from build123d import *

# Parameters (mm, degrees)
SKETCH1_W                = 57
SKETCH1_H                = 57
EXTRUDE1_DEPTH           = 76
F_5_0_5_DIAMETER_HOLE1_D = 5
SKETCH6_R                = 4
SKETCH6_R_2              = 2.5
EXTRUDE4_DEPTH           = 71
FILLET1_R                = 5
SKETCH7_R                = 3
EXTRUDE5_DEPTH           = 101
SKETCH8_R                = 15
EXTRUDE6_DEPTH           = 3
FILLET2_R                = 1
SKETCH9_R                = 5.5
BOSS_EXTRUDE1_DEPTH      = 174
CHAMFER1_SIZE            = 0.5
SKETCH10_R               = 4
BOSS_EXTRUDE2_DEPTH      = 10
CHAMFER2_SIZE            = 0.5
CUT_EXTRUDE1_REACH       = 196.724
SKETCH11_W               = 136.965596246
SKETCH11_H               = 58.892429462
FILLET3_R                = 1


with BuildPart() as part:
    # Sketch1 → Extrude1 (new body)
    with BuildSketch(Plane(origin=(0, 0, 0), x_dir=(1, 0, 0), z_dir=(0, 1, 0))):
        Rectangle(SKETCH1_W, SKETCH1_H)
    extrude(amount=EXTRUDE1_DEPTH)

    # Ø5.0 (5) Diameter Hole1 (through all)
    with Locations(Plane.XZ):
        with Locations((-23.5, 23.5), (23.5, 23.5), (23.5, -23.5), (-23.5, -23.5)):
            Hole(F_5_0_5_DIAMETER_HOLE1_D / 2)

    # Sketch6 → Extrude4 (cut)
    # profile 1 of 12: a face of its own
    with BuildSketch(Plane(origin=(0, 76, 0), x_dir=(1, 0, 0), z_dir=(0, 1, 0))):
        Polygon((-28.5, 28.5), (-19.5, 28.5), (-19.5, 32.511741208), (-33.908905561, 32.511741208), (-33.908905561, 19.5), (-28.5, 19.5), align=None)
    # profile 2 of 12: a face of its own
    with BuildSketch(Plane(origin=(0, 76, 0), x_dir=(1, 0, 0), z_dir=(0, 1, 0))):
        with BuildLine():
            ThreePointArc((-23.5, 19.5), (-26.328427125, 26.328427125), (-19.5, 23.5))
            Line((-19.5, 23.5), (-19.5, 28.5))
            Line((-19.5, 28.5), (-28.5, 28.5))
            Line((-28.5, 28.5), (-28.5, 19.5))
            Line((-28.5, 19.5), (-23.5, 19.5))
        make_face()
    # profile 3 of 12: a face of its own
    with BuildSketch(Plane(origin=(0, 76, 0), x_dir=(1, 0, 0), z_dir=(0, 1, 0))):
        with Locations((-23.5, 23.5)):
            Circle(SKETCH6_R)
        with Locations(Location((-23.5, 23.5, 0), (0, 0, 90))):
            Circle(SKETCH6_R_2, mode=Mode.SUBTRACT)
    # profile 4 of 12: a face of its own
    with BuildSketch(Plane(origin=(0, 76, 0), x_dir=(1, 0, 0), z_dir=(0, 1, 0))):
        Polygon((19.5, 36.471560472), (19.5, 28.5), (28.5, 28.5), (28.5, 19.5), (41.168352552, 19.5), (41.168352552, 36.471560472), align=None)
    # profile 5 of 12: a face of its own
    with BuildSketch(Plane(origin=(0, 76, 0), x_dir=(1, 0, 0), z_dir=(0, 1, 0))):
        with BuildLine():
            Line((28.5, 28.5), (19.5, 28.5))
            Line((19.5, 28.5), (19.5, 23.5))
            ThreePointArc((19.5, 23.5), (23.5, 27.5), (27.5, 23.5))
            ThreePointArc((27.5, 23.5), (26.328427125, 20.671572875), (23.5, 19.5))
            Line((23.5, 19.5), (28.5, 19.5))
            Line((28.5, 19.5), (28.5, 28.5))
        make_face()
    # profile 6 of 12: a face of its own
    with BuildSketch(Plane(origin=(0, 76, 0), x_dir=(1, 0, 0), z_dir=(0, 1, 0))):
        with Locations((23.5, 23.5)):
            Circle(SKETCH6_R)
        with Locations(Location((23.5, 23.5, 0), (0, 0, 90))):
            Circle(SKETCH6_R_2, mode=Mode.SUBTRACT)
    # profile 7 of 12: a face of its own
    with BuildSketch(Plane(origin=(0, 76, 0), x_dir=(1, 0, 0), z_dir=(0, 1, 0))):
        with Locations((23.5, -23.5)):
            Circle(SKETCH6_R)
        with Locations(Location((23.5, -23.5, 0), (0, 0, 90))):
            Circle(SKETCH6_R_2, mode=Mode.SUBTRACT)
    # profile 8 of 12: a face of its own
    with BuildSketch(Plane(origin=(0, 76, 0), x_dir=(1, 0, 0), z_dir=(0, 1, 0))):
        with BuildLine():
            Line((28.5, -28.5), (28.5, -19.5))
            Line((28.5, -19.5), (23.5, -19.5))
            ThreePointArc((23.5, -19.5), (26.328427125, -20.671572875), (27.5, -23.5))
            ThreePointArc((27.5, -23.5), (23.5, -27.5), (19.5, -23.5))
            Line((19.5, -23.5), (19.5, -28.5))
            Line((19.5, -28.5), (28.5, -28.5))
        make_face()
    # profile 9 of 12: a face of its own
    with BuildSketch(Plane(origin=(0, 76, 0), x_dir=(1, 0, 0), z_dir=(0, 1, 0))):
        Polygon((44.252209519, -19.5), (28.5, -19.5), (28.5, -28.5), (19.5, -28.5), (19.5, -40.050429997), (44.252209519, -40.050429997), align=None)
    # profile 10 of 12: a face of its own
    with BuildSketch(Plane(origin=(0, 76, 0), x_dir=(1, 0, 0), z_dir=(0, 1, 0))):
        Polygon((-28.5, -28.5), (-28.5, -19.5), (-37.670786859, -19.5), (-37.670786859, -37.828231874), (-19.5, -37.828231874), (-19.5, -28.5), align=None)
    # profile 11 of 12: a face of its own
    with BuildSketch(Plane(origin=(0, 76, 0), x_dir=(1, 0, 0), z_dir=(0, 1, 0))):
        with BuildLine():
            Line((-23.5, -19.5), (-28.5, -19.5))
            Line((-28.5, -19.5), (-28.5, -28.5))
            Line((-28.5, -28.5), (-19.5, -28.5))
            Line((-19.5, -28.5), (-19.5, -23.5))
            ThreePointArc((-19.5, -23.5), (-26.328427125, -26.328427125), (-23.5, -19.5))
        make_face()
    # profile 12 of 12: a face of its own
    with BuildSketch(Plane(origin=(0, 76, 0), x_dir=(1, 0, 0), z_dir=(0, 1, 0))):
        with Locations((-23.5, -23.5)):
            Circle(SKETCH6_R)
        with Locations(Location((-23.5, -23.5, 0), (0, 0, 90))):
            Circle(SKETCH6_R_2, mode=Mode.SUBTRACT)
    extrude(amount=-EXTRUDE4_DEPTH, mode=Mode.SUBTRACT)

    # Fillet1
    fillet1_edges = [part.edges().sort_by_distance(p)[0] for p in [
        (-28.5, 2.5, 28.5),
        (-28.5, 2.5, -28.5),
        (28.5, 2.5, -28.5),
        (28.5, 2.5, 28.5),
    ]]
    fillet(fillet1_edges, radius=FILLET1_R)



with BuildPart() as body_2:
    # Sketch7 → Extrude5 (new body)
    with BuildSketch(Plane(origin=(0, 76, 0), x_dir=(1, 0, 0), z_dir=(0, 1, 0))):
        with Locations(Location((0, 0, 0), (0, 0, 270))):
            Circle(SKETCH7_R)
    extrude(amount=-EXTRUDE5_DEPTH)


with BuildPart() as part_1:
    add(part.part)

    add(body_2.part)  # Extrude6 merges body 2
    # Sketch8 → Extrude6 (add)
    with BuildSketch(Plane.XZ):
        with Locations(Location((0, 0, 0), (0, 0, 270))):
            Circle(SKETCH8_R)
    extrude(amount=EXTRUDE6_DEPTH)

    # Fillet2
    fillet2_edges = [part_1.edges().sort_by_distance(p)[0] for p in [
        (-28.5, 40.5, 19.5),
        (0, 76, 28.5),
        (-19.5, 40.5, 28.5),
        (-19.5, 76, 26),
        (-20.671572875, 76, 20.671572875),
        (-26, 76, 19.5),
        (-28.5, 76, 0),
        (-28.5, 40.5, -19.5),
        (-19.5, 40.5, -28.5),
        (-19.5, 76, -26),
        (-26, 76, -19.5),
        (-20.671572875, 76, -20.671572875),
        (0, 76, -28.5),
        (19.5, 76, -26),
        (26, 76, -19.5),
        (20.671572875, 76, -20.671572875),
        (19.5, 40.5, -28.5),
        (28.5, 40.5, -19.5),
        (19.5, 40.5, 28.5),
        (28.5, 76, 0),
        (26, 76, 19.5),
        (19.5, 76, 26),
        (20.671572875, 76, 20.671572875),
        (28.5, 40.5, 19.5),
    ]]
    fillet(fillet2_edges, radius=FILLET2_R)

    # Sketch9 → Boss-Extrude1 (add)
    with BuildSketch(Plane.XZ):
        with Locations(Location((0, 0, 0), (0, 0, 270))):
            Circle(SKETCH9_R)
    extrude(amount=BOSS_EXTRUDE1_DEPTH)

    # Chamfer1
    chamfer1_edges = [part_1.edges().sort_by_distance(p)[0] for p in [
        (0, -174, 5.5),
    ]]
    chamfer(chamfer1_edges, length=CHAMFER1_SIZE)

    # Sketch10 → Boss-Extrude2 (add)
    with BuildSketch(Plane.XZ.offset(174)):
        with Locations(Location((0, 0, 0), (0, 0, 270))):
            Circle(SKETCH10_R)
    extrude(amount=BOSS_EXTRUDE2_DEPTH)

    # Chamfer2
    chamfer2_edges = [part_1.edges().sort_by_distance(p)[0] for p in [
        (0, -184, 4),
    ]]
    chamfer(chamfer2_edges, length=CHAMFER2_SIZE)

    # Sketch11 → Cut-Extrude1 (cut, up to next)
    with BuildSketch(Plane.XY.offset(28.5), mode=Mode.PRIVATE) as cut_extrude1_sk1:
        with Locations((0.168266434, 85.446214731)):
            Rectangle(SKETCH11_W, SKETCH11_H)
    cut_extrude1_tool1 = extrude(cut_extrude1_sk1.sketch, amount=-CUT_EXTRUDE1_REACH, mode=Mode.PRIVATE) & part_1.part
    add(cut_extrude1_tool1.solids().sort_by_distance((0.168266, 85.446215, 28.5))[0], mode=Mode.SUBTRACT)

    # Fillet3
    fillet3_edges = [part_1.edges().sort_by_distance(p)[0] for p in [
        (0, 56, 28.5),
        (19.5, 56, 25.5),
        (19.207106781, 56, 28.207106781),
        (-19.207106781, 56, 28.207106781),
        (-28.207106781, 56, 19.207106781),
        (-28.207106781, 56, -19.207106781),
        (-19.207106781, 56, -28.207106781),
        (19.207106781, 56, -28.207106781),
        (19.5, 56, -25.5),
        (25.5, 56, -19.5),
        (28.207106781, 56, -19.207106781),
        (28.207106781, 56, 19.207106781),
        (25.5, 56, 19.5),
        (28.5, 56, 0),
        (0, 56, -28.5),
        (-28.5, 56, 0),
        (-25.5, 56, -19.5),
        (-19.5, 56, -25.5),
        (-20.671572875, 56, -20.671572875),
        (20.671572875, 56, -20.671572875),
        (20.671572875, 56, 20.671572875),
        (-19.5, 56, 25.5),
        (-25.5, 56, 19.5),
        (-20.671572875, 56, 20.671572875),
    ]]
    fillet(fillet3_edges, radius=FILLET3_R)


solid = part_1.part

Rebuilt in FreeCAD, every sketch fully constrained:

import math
import FreeCAD as App
import Part
import Sketcher

V = App.Vector
Q = App.Units.Quantity


def edges_at(feature, points):
    """Names of the edges that pass closest to the given points."""
    edges = feature.Shape.Edges
    near = lambda p: min(range(len(edges)), key=lambda i: edges[i].distToShape(Part.Vertex(*p))[0])
    return sorted({f"Edge{near(p) + 1}" for p in points})

doc = App.newDocument("Part")
body = doc.addObject("PartDesign::Body", "Body")

# Sketch on XZ plane
sketch1 = body.newObject("Sketcher::SketchObject", "Sketch")
sketch1.AttachmentSupport = (doc.getObject("XZ_Plane"), [""])
sketch1.MapMode = "FlatFace"
sketch1.addGeometry(Part.LineSegment(V(-28, -28, 0), V(-28, 28, 0)), False)
sketch1.addGeometry(Part.LineSegment(V(-28, 28, 0), V(28, 28, 0)), False)
sketch1.addGeometry(Part.LineSegment(V(28, 28, 0), V(28, -28, 0)), False)
sketch1.addGeometry(Part.LineSegment(V(28, -28, 0), V(-28, -28, 0)), False)
sketch1.addConstraint(Sketcher.Constraint("Coincident", 0, 2, 1, 1))
sketch1.addConstraint(Sketcher.Constraint("Coincident", 1, 2, 2, 1))
sketch1.addConstraint(Sketcher.Constraint("Coincident", 2, 2, 3, 1))
sketch1.addConstraint(Sketcher.Constraint("Coincident", 3, 2, 0, 1))
sketch1.addConstraint(Sketcher.Constraint("Vertical", 0))
sketch1.addConstraint(Sketcher.Constraint("Horizontal", 1))
sketch1.addConstraint(Sketcher.Constraint("Vertical", 2))
sketch1.addConstraint(Sketcher.Constraint("Horizontal", 3))
sketch1.addConstraint(Sketcher.Constraint("Symmetric", 0, 2, 2, 2, -1, 1))
sketch1.addConstraint(Sketcher.Constraint("Equal", 3, 0))
sketch1.addConstraint(Sketcher.Constraint("DistanceX", 1, 1, 1, 2, Q("57 mm")))
pad1 = body.newObject("PartDesign::Pad", "Pad")
pad1.Profile = sketch1
pad1.Length = 76
pad1.Reversed = True

# Sketch on XZ plane
sketch2 = body.newObject("Sketcher::SketchObject", "Sketch001")
sketch2.AttachmentSupport = (doc.getObject("XZ_Plane"), [""])
sketch2.MapMode = "FlatFace"
sketch2.addGeometry(Part.Circle(V(-23.5, 23.5, 0), V(0, 0, 1), 2.5), False)
sketch2.addGeometry(Part.Circle(V(23.5, 23.5, 0), V(0, 0, 1), 2.5), False)
sketch2.addGeometry(Part.Circle(V(23.5, -23.5, 0), V(0, 0, 1), 2.5), False)
sketch2.addGeometry(Part.Circle(V(-23.5, -23.5, 0), V(0, 0, 1), 2.5), False)
sketch2.addConstraint(Sketcher.Constraint("Equal", 0, 1))
sketch2.addConstraint(Sketcher.Constraint("Equal", 1, 2))
sketch2.addConstraint(Sketcher.Constraint("Equal", 2, 3))
sketch2.addConstraint(Sketcher.Constraint("Symmetric", 0, 3, 2, 3, -1, 1))
sketch2.addConstraint(Sketcher.Constraint("Symmetric", 1, 3, 3, 3, -1, 1))
sketch2.addConstraint(Sketcher.Constraint("Symmetric", 0, 3, 1, 3, -2))
sketch2.addConstraint(Sketcher.Constraint("Diameter", 0, Q("5 mm")))
sketch2.addConstraint(Sketcher.Constraint("DistanceX", 0, 3, 1, 3, Q("47 mm")))
sketch2.addConstraint(Sketcher.Constraint("DistanceY", 2, 3, 1, 3, Q("47 mm")))
doc.recompute()
hole = body.newObject("PartDesign::Hole", "Hole")
hole.Profile = sketch2
hole.ThreadType = "None"
hole.Diameter = 5
hole.DepthType = "ThroughAll"

# Sketch on XZ plane
sketch3 = body.newObject("Sketcher::SketchObject", "Sketch002")
sketch3.AttachmentSupport = (doc.getObject("XZ_Plane"), [""])
sketch3.MapMode = "FlatFace"
sketch3.AttachmentOffset = App.Placement(V(0, 0, -76), App.Rotation())
sketch3.addGeometry(Part.LineSegment(V(-19.5, -32.5, 0), V(-33.9, -32.5, 0)), False)
sketch3.addGeometry(Part.LineSegment(V(-33.9, -32.5, 0), V(-33.9, -19.5, 0)), False)
sketch3.addGeometry(Part.LineSegment(V(-33.9, -19.5, 0), V(-23.5, -19.5, 0)), False)
sketch3.addGeometry(Part.ArcOfCircle(Part.Circle(V(-23.5, -23.5, 0), V(0, 0, 1), 4), math.radians(0), math.radians(90)), False)
sketch3.addGeometry(Part.LineSegment(V(-19.5, -23.5, 0), V(-19.5, -32.5, 0)), False)
sketch3.addGeometry(Part.Circle(V(-23.5, -23.5, 0), V(0, 0, 1), 2.5), False)
sketch3.addGeometry(Part.LineSegment(V(19.5, -36.5, 0), V(19.5, -23.5, 0)), False)
sketch3.addGeometry(Part.ArcOfCircle(Part.Circle(V(23.5, -23.5, 0), V(0, 0, 1), 4), math.radians(90), math.radians(180)), False)
sketch3.addGeometry(Part.LineSegment(V(23.5, -19.5, 0), V(41.2, -19.5, 0)), False)
sketch3.addGeometry(Part.LineSegment(V(41.2, -19.5, 0), V(41.2, -36.5, 0)), False)
sketch3.addGeometry(Part.LineSegment(V(41.2, -36.5, 0), V(19.5, -36.5, 0)), False)
sketch3.addGeometry(Part.Circle(V(23.5, -23.5, 0), V(0, 0, 1), 2.5), False)
sketch3.addGeometry(Part.ArcOfCircle(Part.Circle(V(23.5, 23.5, 0), V(0, 0, 1), 4), math.radians(180), math.radians(270)), False)
sketch3.addGeometry(Part.LineSegment(V(19.5, 23.5, 0), V(19.5, 40.1, 0)), False)
sketch3.addGeometry(Part.LineSegment(V(19.5, 40.1, 0), V(44.3, 40.1, 0)), False)
sketch3.addGeometry(Part.LineSegment(V(44.3, 40.1, 0), V(44.3, 19.5, 0)), False)
sketch3.addGeometry(Part.LineSegment(V(44.3, 19.5, 0), V(23.5, 19.5, 0)), False)
sketch3.addGeometry(Part.Circle(V(23.5, 23.5, 0), V(0, 0, 1), 2.5), False)
sketch3.addGeometry(Part.LineSegment(V(-37.7, 19.5, 0), V(-37.7, 37.8, 0)), False)
sketch3.addGeometry(Part.LineSegment(V(-37.7, 37.8, 0), V(-19.5, 37.8, 0)), False)
sketch3.addGeometry(Part.LineSegment(V(-19.5, 37.8, 0), V(-19.5, 23.5, 0)), False)
sketch3.addGeometry(Part.ArcOfCircle(Part.Circle(V(-23.5, 23.5, 0), V(0, 0, 1), 4), math.radians(-90), math.radians(0)), False)
sketch3.addGeometry(Part.LineSegment(V(-23.5, 19.5, 0), V(-37.7, 19.5, 0)), False)
sketch3.addGeometry(Part.Circle(V(-23.5, 23.5, 0), V(0, 0, 1), 2.5), False)
sketch3.addConstraint(Sketcher.Constraint("Coincident", 0, 2, 1, 1))
sketch3.addConstraint(Sketcher.Constraint("Coincident", 1, 2, 2, 1))
sketch3.addConstraint(Sketcher.Constraint("Tangent", 2, 2, 3, 2))
sketch3.addConstraint(Sketcher.Constraint("Tangent", 3, 1, 4, 1))
sketch3.addConstraint(Sketcher.Constraint("Coincident", 4, 2, 0, 1))
sketch3.addConstraint(Sketcher.Constraint("Tangent", 6, 2, 7, 2))
sketch3.addConstraint(Sketcher.Constraint("Tangent", 7, 1, 8, 1))
sketch3.addConstraint(Sketcher.Constraint("Coincident", 8, 2, 9, 1))
sketch3.addConstraint(Sketcher.Constraint("Coincident", 9, 2, 10, 1))
sketch3.addConstraint(Sketcher.Constraint("Coincident", 10, 2, 6, 1))
sketch3.addConstraint(Sketcher.Constraint("Tangent", 12, 1, 13, 1))
sketch3.addConstraint(Sketcher.Constraint("Coincident", 13, 2, 14, 1))
sketch3.addConstraint(Sketcher.Constraint("Coincident", 14, 2, 15, 1))
sketch3.addConstraint(Sketcher.Constraint("Coincident", 15, 2, 16, 1))
sketch3.addConstraint(Sketcher.Constraint("Tangent", 16, 2, 12, 2))
sketch3.addConstraint(Sketcher.Constraint("Coincident", 18, 2, 19, 1))
sketch3.addConstraint(Sketcher.Constraint("Coincident", 19, 2, 20, 1))
sketch3.addConstraint(Sketcher.Constraint("Tangent", 20, 2, 21, 2))
sketch3.addConstraint(Sketcher.Constraint("Tangent", 21, 1, 22, 1))
sketch3.addConstraint(Sketcher.Constraint("Coincident", 22, 2, 18, 1))
sketch3.addConstraint(Sketcher.Constraint("Horizontal", 0))
sketch3.addConstraint(Sketcher.Constraint("Vertical", 1))
sketch3.addConstraint(Sketcher.Constraint("Horizontal", 2))
sketch3.addConstraint(Sketcher.Constraint("Vertical", 4))
sketch3.addConstraint(Sketcher.Constraint("Vertical", 6))
sketch3.addConstraint(Sketcher.Constraint("Horizontal", 8))
sketch3.addConstraint(Sketcher.Constraint("Vertical", 9))
sketch3.addConstraint(Sketcher.Constraint("Horizontal", 10))
sketch3.addConstraint(Sketcher.Constraint("Vertical", 13))
sketch3.addConstraint(Sketcher.Constraint("Horizontal", 14))
sketch3.addConstraint(Sketcher.Constraint("Vertical", 15))
sketch3.addConstraint(Sketcher.Constraint("Horizontal", 16))
sketch3.addConstraint(Sketcher.Constraint("Vertical", 18))
sketch3.addConstraint(Sketcher.Constraint("Horizontal", 19))
sketch3.addConstraint(Sketcher.Constraint("Vertical", 20))
sketch3.addConstraint(Sketcher.Constraint("Horizontal", 22))
sketch3.addConstraint(Sketcher.Constraint("Coincident", 5, 3, 3, 3))
sketch3.addConstraint(Sketcher.Constraint("Coincident", 11, 3, 7, 3))
sketch3.addConstraint(Sketcher.Constraint("Coincident", 17, 3, 12, 3))
sketch3.addConstraint(Sketcher.Constraint("Coincident", 23, 3, 21, 3))
sketch3.addConstraint(Sketcher.Constraint("Equal", 3, 7))
sketch3.addConstraint(Sketcher.Constraint("Equal", 5, 11))
sketch3.addConstraint(Sketcher.Constraint("Equal", 7, 12))
sketch3.addConstraint(Sketcher.Constraint("Equal", 11, 17))
sketch3.addConstraint(Sketcher.Constraint("Equal", 12, 21))
sketch3.addConstraint(Sketcher.Constraint("Equal", 17, 23))
sketch3.addConstraint(Sketcher.Constraint("Symmetric", 3, 3, 12, 3, -1, 1))
sketch3.addConstraint(Sketcher.Constraint("Symmetric", 7, 3, 21, 3, -1, 1))
sketch3.addConstraint(Sketcher.Constraint("Symmetric", 3, 3, 7, 3, -2))
sketch3.addConstraint(Sketcher.Constraint("Diameter", 5, Q("5 mm")))
sketch3.addConstraint(Sketcher.Constraint("Radius", 3, Q("4 mm")))
sketch3.addConstraint(Sketcher.Constraint("DistanceX", 3, 3, 7, 3, Q("47 mm")))
sketch3.addConstraint(Sketcher.Constraint("DistanceY", 7, 3, 12, 3, Q("47 mm")))
sketch3.addConstraint(Sketcher.Constraint("DistanceX", 14, 1, 14, 2, Q("24.75221 mm")))
sketch3.addConstraint(Sketcher.Constraint("DistanceY", 1, 1, 1, 2, Q("13.011741 mm")))
sketch3.addConstraint(Sketcher.Constraint("DistanceY", 6, 1, 6, 2, Q("12.97156 mm")))
sketch3.addConstraint(Sketcher.Constraint("DistanceY", 13, 1, 13, 2, Q("16.55043 mm")))
sketch3.addConstraint(Sketcher.Constraint("DistanceY", 18, 1, 18, 2, Q("18.328232 mm")))
sketch3.addConstraint(Sketcher.Constraint("DistanceX", 0, 2, 0, 1, Q("14.408906 mm")))
sketch3.addConstraint(Sketcher.Constraint("DistanceX", 8, 1, 8, 2, Q("17.668353 mm")))
sketch3.addConstraint(Sketcher.Constraint("DistanceX", 19, 1, 19, 2, Q("18.170787 mm")))
pocket1 = body.newObject("PartDesign::Pocket", "Pocket")
pocket1.Profile = sketch3
pocket1.Length = 71
pocket1.Reversed = True
doc.recompute()

fillet = body.newObject("PartDesign::Fillet", "Fillet")
fillet.Base = (pocket1, edges_at(pocket1, [
    (-28.5, 2.5, 28.5),
    (-28.5, 2.5, -28.5),
    (28.5, 2.5, -28.5),
    (28.5, 2.5, 28.5),
]))
fillet.Radius = 5
body2 = doc.addObject("PartDesign::Body", "Body001")

# Sketch on XZ plane
sketch4 = body2.newObject("Sketcher::SketchObject", "Sketch003")
sketch4.AttachmentSupport = (doc.getObject("XZ_Plane001"), [""])
sketch4.MapMode = "FlatFace"
sketch4.AttachmentOffset = App.Placement(V(0, 0, -76), App.Rotation())
sketch4.addGeometry(Part.Circle(V(0, 0, 0), V(0, 0, 1), 3), False)
sketch4.addConstraint(Sketcher.Constraint("Coincident", 0, 3, -1, 1))
sketch4.addConstraint(Sketcher.Constraint("Diameter", 0, Q("6 mm")))
pad2 = body2.newObject("PartDesign::Pad", "Pad001")
pad2.Profile = sketch4
pad2.Length = 101
doc.recompute()

boolean = body.newObject("PartDesign::Boolean", "Boolean")
boolean.Type = "Fuse"
boolean.addObjects([body2])

# Sketch on XZ plane
sketch5 = body.newObject("Sketcher::SketchObject", "Sketch004")
sketch5.AttachmentSupport = (doc.getObject("XZ_Plane"), [""])
sketch5.MapMode = "FlatFace"
sketch5.addGeometry(Part.Circle(V(0, 0, 0), V(0, 0, 1), 15), False)
sketch5.addConstraint(Sketcher.Constraint("Coincident", 0, 3, -1, 1))
sketch5.addConstraint(Sketcher.Constraint("Diameter", 0, Q("30 mm")))
pad3 = body.newObject("PartDesign::Pad", "Pad002")
pad3.Profile = sketch5
pad3.Length = 3
doc.recompute()

fillet2 = body.newObject("PartDesign::Fillet", "Fillet001")
fillet2.Base = (pad3, edges_at(pad3, [
    (-28.5, 40.5, 19.5),
    (0, 76, 28.5),
    (-19.5, 40.5, 28.5),
    (-19.5, 76, 26),
    (-20.672, 76, 20.672),
    (-26, 76, 19.5),
    (-28.5, 76, 0),
    (-28.5, 40.5, -19.5),
    (-19.5, 40.5, -28.5),
    (-19.5, 76, -26),
    (-26, 76, -19.5),
    (-20.672, 76, -20.672),
    (0, 76, -28.5),
    (19.5, 76, -26),
    (26, 76, -19.5),
    (20.672, 76, -20.672),
    (19.5, 40.5, -28.5),
    (28.5, 40.5, -19.5),
    (19.5, 40.5, 28.5),
    (28.5, 76, 0),
    (26, 76, 19.5),
    (19.5, 76, 26),
    (20.672, 76, 20.672),
    (28.5, 40.5, 19.5),
]))
fillet2.Radius = 1

# Sketch on XZ plane
sketch6 = body.newObject("Sketcher::SketchObject", "Sketch005")
sketch6.AttachmentSupport = (doc.getObject("XZ_Plane"), [""])
sketch6.MapMode = "FlatFace"
sketch6.addGeometry(Part.Circle(V(0, 0, 0), V(0, 0, 1), 6), False)
sketch6.addConstraint(Sketcher.Constraint("Coincident", 0, 3, -1, 1))
sketch6.addConstraint(Sketcher.Constraint("Diameter", 0, Q("11 mm")))
pad4 = body.newObject("PartDesign::Pad", "Pad003")
pad4.Profile = sketch6
pad4.Length = 174
doc.recompute()

chamfer = body.newObject("PartDesign::Chamfer", "Chamfer")
chamfer.Base = (pad4, edges_at(pad4, [(0, -174, 5.5)]))
chamfer.Size = 0.5

# Sketch on XZ plane
sketch7 = body.newObject("Sketcher::SketchObject", "Sketch006")
sketch7.AttachmentSupport = (doc.getObject("XZ_Plane"), [""])
sketch7.MapMode = "FlatFace"
sketch7.AttachmentOffset = App.Placement(V(0, 0, 174), App.Rotation())
sketch7.addGeometry(Part.Circle(V(0, 0, 0), V(0, 0, 1), 4), False)
sketch7.addConstraint(Sketcher.Constraint("Coincident", 0, 3, -1, 1))
sketch7.addConstraint(Sketcher.Constraint("Diameter", 0, Q("8 mm")))
pad5 = body.newObject("PartDesign::Pad", "Pad004")
pad5.Profile = sketch7
pad5.Length = 10
doc.recompute()

chamfer2 = body.newObject("PartDesign::Chamfer", "Chamfer001")
chamfer2.Base = (pad5, edges_at(pad5, [(0, -184, 4)]))
chamfer2.Size = 0.5

# Sketch on XY plane
sketch8 = body.newObject("Sketcher::SketchObject", "Sketch007")
sketch8.AttachmentSupport = (doc.getObject("XY_Plane"), [""])
sketch8.MapMode = "FlatFace"
sketch8.AttachmentOffset = App.Placement(V(0, 0, 28.5), App.Rotation())
sketch8.addGeometry(Part.LineSegment(V(-68, 115, 0), V(-68, 56, 0)), False)
sketch8.addGeometry(Part.LineSegment(V(-68, 56, 0), V(69, 56, 0)), False)
sketch8.addGeometry(Part.LineSegment(V(69, 56, 0), V(69, 115, 0)), False)
sketch8.addGeometry(Part.LineSegment(V(69, 115, 0), V(-68, 115, 0)), False)
sketch8.addConstraint(Sketcher.Constraint("Coincident", 0, 2, 1, 1))
sketch8.addConstraint(Sketcher.Constraint("Coincident", 1, 2, 2, 1))
sketch8.addConstraint(Sketcher.Constraint("Coincident", 2, 2, 3, 1))
sketch8.addConstraint(Sketcher.Constraint("Coincident", 3, 2, 0, 1))
sketch8.addConstraint(Sketcher.Constraint("Vertical", 0))
sketch8.addConstraint(Sketcher.Constraint("Horizontal", 1))
sketch8.addConstraint(Sketcher.Constraint("Vertical", 2))
sketch8.addConstraint(Sketcher.Constraint("Horizontal", 3))
sketch8.addConstraint(Sketcher.Constraint("DistanceY", -1, 1, 0, 2, Q("56 mm")))
sketch8.addConstraint(Sketcher.Constraint("DistanceY", 0, 2, 0, 1, Q("58.892429 mm")))
sketch8.addConstraint(Sketcher.Constraint("DistanceX", 1, 1, 1, 2, Q("136.965596 mm")))
sketch8.addConstraint(Sketcher.Constraint("DistanceX", 0, 2, -1, 1, Q("68.314532 mm")))
pocket2 = body.newObject("PartDesign::Pocket", "Pocket001")
pocket2.Profile = sketch8
pocket2.Length = 57
doc.recompute()

fillet3 = body.newObject("PartDesign::Fillet", "Fillet002")
fillet3.Base = (pocket2, edges_at(pocket2, [
    (0, 56, 28.5),
    (19.5, 56, 25.5),
    (19.207, 56, 28.207),
    (-19.207, 56, 28.207),
    (-28.207, 56, 19.207),
    (-28.207, 56, -19.207),
    (-19.207, 56, -28.207),
    (19.207, 56, -28.207),
    (19.5, 56, -25.5),
    (25.5, 56, -19.5),
    (28.207, 56, -19.207),
    (28.207, 56, 19.207),
    (25.5, 56, 19.5),
    (28.5, 56, 0),
    (0, 56, -28.5),
    (-28.5, 56, 0),
    (-25.5, 56, -19.5),
    (-19.5, 56, -25.5),
    (-20.672, 56, -20.672),
    (20.672, 56, -20.672),
    (20.672, 56, 20.672),
    (-19.5, 56, 25.5),
    (-25.5, 56, 19.5),
    (-20.672, 56, 20.672),
]))
fillet3.Radius = 1

doc.recompute()
